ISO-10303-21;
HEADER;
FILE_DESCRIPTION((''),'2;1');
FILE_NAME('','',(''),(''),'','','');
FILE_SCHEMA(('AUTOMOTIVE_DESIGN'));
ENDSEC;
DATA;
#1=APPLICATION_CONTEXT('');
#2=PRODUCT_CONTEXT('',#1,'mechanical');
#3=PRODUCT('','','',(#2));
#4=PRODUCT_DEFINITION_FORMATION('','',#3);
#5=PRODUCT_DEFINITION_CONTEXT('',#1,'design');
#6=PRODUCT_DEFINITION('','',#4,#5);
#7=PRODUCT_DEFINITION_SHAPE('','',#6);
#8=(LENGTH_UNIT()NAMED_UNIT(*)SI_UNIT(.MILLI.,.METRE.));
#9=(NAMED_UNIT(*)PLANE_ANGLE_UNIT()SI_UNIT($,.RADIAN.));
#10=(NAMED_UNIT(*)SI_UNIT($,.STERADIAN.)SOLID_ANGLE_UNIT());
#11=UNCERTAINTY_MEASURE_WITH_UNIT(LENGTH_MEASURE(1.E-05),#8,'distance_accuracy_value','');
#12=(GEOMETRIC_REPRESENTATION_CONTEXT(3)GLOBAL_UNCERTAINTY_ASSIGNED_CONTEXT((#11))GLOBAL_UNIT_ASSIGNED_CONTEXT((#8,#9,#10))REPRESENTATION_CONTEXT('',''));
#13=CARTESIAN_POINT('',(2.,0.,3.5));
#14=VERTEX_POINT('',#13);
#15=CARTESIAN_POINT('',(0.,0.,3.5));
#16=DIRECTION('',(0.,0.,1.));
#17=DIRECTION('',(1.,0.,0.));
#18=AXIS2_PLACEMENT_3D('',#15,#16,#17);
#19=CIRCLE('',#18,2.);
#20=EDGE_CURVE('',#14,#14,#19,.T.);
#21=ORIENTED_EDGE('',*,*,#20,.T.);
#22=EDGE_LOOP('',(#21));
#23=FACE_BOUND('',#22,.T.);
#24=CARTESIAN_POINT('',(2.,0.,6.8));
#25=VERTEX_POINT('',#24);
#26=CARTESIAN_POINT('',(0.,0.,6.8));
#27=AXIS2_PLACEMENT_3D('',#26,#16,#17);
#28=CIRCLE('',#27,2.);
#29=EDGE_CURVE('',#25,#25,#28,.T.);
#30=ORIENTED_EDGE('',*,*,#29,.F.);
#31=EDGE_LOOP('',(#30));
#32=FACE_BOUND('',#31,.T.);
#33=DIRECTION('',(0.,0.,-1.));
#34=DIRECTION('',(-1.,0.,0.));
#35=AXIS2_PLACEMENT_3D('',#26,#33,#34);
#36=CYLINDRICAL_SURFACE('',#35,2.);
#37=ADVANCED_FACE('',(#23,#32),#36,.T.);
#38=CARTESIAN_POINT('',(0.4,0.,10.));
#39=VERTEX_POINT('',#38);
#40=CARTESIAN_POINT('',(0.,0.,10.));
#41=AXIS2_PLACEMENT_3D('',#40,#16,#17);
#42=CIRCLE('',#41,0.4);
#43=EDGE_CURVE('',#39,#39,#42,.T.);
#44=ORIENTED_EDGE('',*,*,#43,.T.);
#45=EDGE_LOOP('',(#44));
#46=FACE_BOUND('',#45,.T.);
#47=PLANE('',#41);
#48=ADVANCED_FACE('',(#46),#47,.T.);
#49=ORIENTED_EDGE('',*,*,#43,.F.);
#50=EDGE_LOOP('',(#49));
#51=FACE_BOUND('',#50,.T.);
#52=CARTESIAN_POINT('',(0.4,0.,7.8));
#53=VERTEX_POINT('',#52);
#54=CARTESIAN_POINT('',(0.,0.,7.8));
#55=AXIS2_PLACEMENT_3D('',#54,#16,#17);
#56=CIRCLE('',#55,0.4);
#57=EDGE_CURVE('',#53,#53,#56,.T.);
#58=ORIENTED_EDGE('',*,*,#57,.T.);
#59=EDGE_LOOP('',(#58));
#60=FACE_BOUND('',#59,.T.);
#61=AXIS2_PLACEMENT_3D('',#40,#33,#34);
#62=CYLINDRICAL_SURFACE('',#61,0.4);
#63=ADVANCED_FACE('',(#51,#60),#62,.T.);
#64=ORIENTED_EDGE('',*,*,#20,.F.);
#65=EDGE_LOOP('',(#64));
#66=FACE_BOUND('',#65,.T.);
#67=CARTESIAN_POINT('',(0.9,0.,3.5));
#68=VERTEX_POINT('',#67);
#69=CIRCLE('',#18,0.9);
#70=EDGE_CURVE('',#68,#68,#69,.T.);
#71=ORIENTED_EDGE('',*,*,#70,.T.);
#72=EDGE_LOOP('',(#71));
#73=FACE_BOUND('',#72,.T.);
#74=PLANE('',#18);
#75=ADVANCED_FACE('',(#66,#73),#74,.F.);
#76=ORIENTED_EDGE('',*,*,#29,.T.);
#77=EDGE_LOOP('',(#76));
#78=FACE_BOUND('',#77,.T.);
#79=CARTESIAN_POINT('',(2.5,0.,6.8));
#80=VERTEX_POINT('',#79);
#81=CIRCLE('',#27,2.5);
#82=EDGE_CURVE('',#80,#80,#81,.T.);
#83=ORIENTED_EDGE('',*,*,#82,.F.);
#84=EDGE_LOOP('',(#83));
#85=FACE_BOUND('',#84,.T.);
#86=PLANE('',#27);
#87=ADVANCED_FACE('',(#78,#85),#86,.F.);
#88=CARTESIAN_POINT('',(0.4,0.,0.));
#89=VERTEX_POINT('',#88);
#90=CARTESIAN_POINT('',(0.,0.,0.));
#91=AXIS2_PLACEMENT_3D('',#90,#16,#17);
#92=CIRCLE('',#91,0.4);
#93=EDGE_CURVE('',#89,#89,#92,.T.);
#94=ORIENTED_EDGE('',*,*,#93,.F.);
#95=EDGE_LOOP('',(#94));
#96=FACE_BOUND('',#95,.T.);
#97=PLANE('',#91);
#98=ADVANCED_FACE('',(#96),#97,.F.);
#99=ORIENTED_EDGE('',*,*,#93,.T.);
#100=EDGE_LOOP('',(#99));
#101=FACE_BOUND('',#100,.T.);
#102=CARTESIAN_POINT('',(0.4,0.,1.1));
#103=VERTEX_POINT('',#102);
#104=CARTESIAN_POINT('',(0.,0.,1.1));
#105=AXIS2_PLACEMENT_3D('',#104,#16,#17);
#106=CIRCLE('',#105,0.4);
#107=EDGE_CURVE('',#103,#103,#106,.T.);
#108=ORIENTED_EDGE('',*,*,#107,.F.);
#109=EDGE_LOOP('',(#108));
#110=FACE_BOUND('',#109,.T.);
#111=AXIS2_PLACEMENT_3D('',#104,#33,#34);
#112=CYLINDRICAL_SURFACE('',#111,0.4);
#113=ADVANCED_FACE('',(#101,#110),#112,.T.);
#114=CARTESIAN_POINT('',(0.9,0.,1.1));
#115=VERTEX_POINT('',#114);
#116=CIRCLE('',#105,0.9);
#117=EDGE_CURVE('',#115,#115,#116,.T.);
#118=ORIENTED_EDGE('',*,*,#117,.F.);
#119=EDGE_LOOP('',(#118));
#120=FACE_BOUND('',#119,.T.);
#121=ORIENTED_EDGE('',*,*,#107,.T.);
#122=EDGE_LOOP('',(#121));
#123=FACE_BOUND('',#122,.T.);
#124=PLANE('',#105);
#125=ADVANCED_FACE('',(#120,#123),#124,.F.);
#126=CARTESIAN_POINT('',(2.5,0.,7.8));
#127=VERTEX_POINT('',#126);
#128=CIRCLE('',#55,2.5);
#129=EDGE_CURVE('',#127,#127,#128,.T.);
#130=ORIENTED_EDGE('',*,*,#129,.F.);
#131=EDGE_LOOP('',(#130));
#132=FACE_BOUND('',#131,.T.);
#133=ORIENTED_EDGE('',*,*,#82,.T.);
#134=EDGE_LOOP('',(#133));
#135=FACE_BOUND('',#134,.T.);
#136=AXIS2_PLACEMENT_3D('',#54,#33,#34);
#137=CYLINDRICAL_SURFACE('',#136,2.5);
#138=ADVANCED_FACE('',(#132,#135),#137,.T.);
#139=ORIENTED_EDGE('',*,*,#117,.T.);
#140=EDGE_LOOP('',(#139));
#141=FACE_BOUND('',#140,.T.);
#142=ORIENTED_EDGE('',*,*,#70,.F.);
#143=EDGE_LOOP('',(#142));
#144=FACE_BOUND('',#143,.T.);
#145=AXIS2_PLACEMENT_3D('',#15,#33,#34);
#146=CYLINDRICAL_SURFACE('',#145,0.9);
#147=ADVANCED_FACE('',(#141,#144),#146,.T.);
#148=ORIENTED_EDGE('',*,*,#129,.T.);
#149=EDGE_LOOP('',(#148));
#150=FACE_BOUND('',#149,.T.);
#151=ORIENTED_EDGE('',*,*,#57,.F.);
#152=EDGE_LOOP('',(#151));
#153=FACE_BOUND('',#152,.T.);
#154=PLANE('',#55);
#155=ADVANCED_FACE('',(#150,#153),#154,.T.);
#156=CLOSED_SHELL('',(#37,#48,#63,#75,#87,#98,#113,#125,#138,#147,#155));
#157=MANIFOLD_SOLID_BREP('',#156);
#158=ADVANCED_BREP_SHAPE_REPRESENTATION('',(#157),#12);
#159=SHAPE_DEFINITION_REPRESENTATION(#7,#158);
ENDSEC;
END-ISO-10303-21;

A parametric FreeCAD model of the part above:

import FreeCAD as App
import Part
import Sketcher

V = App.Vector
Q = App.Units.Quantity

doc = App.newDocument("Part")
params = doc.addObject("Spreadsheet::Sheet", "Params")
for row, (alias, value) in enumerate([
    ("sketch1_diameter", "0.8 mm"),
    ("pad1_length", "1.1 mm"),
    ("sketch2_diameter", "1.8 mm"),
    ("pad2_length", "2.4 mm"),
    ("sketch3_diameter", "4 mm"),
    ("pad3_length", "3.3 mm"),
    ("sketch4_diameter", "5 mm"),
    ("pad4_length", "1 mm"),
    ("sketch5_diameter", "0.8 mm"),
    ("pad5_length", "2.2 mm"),
], start=1):
    params.set(f"A{row}", alias)
    params.set(f"B{row}", "=" + value)
    params.setAlias(f"B{row}", alias)

body = doc.addObject("PartDesign::Body", "Body")

# Sketch on XY plane
sketch1 = body.newObject("Sketcher::SketchObject", "Sketch")
sketch1.AttachmentSupport = (doc.getObject("XY_Plane"), [""])
sketch1.MapMode = "FlatFace"
sketch1.addGeometry(Part.Circle(V(0, 0, 0), V(0, 0, 1), 0.4), False)
sketch1.addConstraint(Sketcher.Constraint("Coincident", 0, 3, -1, 1))
sketch1.addConstraint(Sketcher.Constraint("Diameter", 0, Q("0.8 mm")))
sketch1.setExpression("Constraints[1]", "Params.sketch1_diameter")
pad1 = body.newObject("PartDesign::Pad", "Pad")
pad1.Profile = sketch1
pad1.setExpression("Length", "Params.pad1_length")

# Sketch on XY plane
sketch2 = body.newObject("Sketcher::SketchObject", "Sketch001")
sketch2.AttachmentSupport = (doc.getObject("XY_Plane"), [""])
sketch2.MapMode = "FlatFace"
sketch2.AttachmentOffset = App.Placement(V(0, 0, 1.1), App.Rotation())
sketch2.addGeometry(Part.Circle(V(0, 0, 0), V(0, 0, 1), 0.9), False)
sketch2.addConstraint(Sketcher.Constraint("Coincident", 0, 3, -1, 1))
sketch2.addConstraint(Sketcher.Constraint("Diameter", 0, Q("1.8 mm")))
sketch2.setExpression("Constraints[1]", "Params.sketch2_diameter")
pad2 = body.newObject("PartDesign::Pad", "Pad001")
pad2.Profile = sketch2
pad2.setExpression("Length", "Params.pad2_length")

# Sketch on XY plane
sketch3 = body.newObject("Sketcher::SketchObject", "Sketch002")
sketch3.AttachmentSupport = (doc.getObject("XY_Plane"), [""])
sketch3.MapMode = "FlatFace"
sketch3.AttachmentOffset = App.Placement(V(0, 0, 3.5), App.Rotation())
sketch3.addGeometry(Part.Circle(V(0, 0, 0), V(0, 0, 1), 2), False)
sketch3.addConstraint(Sketcher.Constraint("Coincident", 0, 3, -1, 1))
sketch3.addConstraint(Sketcher.Constraint("Diameter", 0, Q("4 mm")))
sketch3.setExpression("Constraints[1]", "Params.sketch3_diameter")
pad3 = body.newObject("PartDesign::Pad", "Pad002")
pad3.Profile = sketch3
pad3.setExpression("Length", "Params.pad3_length")

# Sketch on XY plane
sketch4 = body.newObject("Sketcher::SketchObject", "Sketch003")
sketch4.AttachmentSupport = (doc.getObject("XY_Plane"), [""])
sketch4.MapMode = "FlatFace"
sketch4.AttachmentOffset = App.Placement(V(0, 0, 6.8), App.Rotation())
sketch4.addGeometry(Part.Circle(V(0, 0, 0), V(0, 0, 1), 2.5), False)
sketch4.addConstraint(Sketcher.Constraint("Coincident", 0, 3, -1, 1))
sketch4.addConstraint(Sketcher.Constraint("Diameter", 0, Q("5 mm")))
sketch4.setExpression("Constraints[1]", "Params.sketch4_diameter")
pad4 = body.newObject("PartDesign::Pad", "Pad003")
pad4.Profile = sketch4
pad4.setExpression("Length", "Params.pad4_length")

# Sketch on XY plane
sketch5 = body.newObject("Sketcher::SketchObject", "Sketch004")
sketch5.AttachmentSupport = (doc.getObject("XY_Plane"), [""])
sketch5.MapMode = "FlatFace"
sketch5.AttachmentOffset = App.Placement(V(0, 0, 7.8), App.Rotation())
sketch5.addGeometry(Part.Circle(V(0, 0, 0), V(0, 0, 1), 0.4), False)
sketch5.addConstraint(Sketcher.Constraint("Coincident", 0, 3, -1, 1))
sketch5.addConstraint(Sketcher.Constraint("Diameter", 0, Q("0.8 mm")))
sketch5.setExpression("Constraints[1]", "Params.sketch5_diameter")
pad5 = body.newObject("PartDesign::Pad", "Pad004")
pad5.Profile = sketch5
pad5.setExpression("Length", "Params.pad5_length")

doc.recompute()
